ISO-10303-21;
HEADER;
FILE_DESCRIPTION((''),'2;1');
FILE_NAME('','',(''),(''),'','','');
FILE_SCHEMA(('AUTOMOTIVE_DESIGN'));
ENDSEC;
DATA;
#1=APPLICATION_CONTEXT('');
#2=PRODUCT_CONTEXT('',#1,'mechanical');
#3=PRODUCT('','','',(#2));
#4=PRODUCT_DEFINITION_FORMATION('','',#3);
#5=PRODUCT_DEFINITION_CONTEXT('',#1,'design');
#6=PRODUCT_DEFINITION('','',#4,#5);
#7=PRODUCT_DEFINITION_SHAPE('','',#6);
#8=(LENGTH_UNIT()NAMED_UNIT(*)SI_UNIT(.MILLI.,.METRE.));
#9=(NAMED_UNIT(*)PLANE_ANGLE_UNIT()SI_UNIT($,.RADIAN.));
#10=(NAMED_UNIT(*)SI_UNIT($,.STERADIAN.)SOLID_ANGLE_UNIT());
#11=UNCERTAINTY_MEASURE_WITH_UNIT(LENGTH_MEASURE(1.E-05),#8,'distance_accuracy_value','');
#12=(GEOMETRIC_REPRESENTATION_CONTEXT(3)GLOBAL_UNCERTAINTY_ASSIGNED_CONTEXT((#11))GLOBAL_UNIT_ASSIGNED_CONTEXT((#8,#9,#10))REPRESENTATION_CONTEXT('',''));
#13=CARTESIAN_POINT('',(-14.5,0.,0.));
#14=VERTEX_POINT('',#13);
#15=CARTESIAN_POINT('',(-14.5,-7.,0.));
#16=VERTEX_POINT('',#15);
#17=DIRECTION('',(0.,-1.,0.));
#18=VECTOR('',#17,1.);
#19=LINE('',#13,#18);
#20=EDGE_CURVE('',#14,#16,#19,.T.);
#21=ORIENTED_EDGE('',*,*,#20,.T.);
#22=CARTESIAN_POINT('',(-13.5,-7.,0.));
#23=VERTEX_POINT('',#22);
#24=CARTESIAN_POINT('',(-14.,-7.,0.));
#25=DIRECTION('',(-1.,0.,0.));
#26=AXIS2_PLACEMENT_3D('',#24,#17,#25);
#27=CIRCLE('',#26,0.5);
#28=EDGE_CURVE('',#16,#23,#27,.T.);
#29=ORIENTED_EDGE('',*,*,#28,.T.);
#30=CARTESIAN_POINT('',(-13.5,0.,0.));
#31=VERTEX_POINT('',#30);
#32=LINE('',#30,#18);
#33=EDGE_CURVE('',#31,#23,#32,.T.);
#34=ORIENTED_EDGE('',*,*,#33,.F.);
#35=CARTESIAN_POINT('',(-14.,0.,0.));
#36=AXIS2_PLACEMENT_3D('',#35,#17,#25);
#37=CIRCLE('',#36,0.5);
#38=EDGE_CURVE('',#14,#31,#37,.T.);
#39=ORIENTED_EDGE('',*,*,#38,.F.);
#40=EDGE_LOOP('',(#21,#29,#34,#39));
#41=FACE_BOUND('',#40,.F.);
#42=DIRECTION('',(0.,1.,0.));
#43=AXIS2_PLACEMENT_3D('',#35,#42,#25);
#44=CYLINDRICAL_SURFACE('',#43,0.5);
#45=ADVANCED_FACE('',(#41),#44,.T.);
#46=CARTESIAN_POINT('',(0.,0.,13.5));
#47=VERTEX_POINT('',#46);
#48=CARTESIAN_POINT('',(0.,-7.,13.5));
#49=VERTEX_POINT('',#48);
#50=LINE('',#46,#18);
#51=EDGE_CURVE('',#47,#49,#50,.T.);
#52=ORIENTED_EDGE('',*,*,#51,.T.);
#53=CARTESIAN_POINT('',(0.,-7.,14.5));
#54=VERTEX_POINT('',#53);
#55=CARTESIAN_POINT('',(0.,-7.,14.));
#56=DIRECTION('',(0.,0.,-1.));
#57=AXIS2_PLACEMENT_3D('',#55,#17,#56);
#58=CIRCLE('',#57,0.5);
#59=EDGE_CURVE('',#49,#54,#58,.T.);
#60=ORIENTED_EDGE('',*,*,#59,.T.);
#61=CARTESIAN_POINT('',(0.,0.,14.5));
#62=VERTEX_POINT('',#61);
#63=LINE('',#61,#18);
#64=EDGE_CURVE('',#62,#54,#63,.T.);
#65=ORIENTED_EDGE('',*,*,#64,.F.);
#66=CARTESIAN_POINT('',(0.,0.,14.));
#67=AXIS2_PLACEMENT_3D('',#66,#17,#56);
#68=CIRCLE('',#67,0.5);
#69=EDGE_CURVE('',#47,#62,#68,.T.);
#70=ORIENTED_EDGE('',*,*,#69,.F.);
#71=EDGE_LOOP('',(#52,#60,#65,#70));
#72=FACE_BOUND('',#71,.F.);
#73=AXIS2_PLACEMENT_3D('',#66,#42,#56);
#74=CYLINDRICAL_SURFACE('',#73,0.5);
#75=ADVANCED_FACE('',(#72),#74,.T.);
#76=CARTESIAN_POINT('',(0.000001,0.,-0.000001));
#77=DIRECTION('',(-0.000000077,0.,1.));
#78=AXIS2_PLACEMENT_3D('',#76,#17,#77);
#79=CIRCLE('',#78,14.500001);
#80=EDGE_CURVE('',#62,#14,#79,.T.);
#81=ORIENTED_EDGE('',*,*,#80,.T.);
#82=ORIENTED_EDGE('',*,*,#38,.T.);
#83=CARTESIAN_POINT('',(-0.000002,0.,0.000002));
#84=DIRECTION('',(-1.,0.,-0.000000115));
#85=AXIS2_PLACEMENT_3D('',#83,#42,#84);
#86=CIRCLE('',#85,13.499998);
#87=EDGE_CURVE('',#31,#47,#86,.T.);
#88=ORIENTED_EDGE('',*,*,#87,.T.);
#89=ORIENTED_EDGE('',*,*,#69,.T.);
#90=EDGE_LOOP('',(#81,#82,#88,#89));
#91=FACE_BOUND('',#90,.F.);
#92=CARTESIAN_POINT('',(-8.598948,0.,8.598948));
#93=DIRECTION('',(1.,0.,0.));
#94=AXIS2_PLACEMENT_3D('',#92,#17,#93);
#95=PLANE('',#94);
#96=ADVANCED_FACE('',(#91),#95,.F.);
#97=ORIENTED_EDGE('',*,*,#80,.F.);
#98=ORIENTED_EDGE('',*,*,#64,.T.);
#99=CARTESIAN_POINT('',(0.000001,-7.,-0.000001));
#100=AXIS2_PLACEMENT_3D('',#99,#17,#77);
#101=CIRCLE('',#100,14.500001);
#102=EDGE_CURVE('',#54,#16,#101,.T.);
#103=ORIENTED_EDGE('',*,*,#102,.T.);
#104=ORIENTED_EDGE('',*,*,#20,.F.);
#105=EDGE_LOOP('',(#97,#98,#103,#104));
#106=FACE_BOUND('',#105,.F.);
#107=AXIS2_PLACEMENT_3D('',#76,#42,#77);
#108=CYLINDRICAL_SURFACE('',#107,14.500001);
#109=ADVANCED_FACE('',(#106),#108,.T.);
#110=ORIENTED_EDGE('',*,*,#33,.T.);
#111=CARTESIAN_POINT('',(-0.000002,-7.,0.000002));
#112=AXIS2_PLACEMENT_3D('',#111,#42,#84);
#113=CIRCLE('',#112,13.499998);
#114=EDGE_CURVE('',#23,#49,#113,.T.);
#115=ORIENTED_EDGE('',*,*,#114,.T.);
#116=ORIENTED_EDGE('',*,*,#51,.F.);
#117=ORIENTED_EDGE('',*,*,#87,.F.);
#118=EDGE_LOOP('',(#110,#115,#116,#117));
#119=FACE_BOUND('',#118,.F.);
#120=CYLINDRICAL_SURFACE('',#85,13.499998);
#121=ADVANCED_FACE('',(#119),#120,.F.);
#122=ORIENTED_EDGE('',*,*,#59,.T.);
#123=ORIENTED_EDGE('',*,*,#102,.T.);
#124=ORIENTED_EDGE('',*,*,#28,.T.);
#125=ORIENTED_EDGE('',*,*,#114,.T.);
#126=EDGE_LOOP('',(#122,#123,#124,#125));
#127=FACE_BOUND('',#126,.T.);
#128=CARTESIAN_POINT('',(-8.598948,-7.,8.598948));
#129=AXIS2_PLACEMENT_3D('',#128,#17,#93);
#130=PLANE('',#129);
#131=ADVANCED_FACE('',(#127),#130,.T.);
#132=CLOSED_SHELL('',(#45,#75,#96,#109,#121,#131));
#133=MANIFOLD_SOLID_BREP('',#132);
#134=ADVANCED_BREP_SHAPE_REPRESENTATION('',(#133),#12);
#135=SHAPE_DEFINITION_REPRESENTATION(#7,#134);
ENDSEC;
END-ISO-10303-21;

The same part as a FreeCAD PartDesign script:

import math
import FreeCAD as App
import Part
import Sketcher
Q = App.Units.Quantity

doc = App.newDocument("Part")
params = doc.addObject("Spreadsheet::Sheet", "Params")
for row, (alias, value) in enumerate([
    ("sketch1_radius", "13.499998 mm"),
    ("sketch1_radius2", "0.5 mm"),
    ("pad1_length", "7 mm"),
], start=1):
    params.set(f"A{row}", alias)
    params.set(f"B{row}", "=" + value)
    params.setAlias(f"B{row}", alias)

body = doc.addObject("PartDesign::Body", "Body")

# Sketch on XZ plane
sketch1 = doc.addObject("Sketcher::SketchObject", "Sketch")
body.addObject(sketch1)
sketch1.AttachmentSupport = (doc.XZ_Plane, [""])
sketch1.MapMode = "FlatFace"
sketch1.addGeometry(Part.ArcOfCircle(Part.Circle(App.Vector(0, 0, 0), App.Vector(0, 0, 1), 13.5), math.radians(90), math.radians(180)), False)
sketch1.addGeometry(Part.ArcOfCircle(Part.Circle(App.Vector(0, 14, 0), App.Vector(0, 0, 1), 0.5), math.radians(-90), math.radians(90)), False)
sketch1.addGeometry(Part.ArcOfCircle(Part.Circle(App.Vector(0, 0, 0), App.Vector(0, 0, 1), 14.5), math.radians(90), math.radians(180)), False)
sketch1.addGeometry(Part.ArcOfCircle(Part.Circle(App.Vector(-14, 0, 0), App.Vector(0, 0, 1), 0.5), math.radians(180), math.radians(360)), False)
sketch1.addConstraint(Sketcher.Constraint("Tangent", 0, 1, 1, 1))
sketch1.addConstraint(Sketcher.Constraint("Tangent", 1, 2, 2, 1))
sketch1.addConstraint(Sketcher.Constraint("Tangent", 2, 2, 3, 1))
sketch1.addConstraint(Sketcher.Constraint("Tangent", 3, 2, 0, 2))
sketch1.addConstraint(Sketcher.Constraint("Coincident", 0, 3, -1, 1))
sketch1.addConstraint(Sketcher.Constraint("Coincident", 2, 3, -1, 1))
sketch1.addConstraint(Sketcher.Constraint("PointOnObject", 1, 3, -2))
sketch1.addConstraint(Sketcher.Constraint("PointOnObject", 3, 3, -1))
sketch1.addConstraint(Sketcher.Constraint("Radius", 0, Q("13.499998 mm")))
sketch1.addConstraint(Sketcher.Constraint("Radius", 1, Q("0.5 mm")))
sketch1.setExpression("Constraints[8]", "Params.sketch1_radius")
sketch1.setExpression("Constraints[9]", "Params.sketch1_radius2")
pad1 = doc.addObject("PartDesign::Pad", "Pad")
body.addObject(pad1)
pad1.Profile = sketch1
pad1.setExpression("Length", "Params.pad1_length")

doc.recompute()
